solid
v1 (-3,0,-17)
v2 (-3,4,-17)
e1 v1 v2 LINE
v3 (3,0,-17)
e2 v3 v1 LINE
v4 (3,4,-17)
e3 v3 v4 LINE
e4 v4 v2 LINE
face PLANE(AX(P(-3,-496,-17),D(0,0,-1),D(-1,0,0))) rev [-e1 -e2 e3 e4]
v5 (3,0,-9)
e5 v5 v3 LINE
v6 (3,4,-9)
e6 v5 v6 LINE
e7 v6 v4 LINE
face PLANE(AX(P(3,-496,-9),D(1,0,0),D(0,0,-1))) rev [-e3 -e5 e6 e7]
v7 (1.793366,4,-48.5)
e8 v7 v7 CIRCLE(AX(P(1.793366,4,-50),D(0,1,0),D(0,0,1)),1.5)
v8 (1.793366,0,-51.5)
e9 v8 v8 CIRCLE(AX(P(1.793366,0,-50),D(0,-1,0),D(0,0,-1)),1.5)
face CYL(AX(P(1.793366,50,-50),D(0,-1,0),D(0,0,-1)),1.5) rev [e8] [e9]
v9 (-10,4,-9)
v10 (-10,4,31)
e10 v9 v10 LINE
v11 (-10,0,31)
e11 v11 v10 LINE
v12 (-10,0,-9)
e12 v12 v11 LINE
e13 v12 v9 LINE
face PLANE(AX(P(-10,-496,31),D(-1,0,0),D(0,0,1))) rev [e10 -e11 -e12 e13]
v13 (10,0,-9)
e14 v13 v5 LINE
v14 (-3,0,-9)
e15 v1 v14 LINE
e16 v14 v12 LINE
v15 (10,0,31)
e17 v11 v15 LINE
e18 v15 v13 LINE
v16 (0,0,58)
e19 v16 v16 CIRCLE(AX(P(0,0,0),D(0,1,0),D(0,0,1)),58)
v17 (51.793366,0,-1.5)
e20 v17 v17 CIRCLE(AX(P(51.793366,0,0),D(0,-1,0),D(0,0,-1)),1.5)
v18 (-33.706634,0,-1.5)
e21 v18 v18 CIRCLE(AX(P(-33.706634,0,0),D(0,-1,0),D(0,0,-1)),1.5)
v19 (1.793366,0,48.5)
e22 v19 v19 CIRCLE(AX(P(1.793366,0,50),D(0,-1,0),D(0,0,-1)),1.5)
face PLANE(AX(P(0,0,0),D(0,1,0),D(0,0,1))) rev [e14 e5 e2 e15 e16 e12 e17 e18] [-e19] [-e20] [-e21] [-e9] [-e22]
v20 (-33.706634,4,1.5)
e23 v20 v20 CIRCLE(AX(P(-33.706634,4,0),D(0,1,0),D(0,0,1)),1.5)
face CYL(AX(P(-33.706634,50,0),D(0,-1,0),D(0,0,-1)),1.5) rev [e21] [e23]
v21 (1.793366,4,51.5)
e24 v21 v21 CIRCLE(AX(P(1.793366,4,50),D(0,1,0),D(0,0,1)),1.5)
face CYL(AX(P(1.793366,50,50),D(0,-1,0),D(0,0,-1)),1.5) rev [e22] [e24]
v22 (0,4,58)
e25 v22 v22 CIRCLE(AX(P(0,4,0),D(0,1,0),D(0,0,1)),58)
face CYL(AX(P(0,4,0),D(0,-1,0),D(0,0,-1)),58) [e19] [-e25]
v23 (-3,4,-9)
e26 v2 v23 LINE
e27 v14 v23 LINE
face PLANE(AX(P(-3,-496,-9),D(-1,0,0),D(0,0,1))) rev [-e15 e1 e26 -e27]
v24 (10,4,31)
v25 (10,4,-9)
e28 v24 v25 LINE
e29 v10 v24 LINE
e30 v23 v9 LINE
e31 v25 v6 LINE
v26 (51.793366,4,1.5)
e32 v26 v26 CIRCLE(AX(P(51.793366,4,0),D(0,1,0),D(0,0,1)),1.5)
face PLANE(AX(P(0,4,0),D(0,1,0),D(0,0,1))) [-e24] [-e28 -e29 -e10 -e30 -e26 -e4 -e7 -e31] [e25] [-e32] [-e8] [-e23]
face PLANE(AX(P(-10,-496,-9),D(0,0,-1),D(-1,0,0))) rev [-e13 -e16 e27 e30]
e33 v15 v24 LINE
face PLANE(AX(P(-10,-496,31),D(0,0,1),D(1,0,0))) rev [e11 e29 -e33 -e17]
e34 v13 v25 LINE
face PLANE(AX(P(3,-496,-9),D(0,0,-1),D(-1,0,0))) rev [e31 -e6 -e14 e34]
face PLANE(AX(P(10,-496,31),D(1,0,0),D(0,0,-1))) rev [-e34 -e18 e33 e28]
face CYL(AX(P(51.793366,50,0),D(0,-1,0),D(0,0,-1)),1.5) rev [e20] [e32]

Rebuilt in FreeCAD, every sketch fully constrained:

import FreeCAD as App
import Part
import Sketcher

V = App.Vector

doc = App.newDocument("Part")
body = doc.addObject("PartDesign::Body", "Body")

# Sketch on XZ plane
sketch1 = doc.addObject("Sketcher::SketchObject", "Sketch")
body.addObject(sketch1)
sketch1.AttachmentSupport = (doc.XZ_Plane, [""])
sketch1.MapMode = "FlatFace"
sketch1.addGeometry(Part.Circle(V(0, 0, 0), V(0, 0, 1), 58), False)
sketch1.addConstraint([
    Sketcher.Constraint("Coincident", 0, 3, -1, 1),
    Sketcher.Constraint("Diameter", 0, 116.0),
])
pad1 = doc.addObject("PartDesign::Pad", "Pad")
body.addObject(pad1)
pad1.Profile = sketch1
pad1.Length = 4
pad1.Reversed = True

# Sketch on XZ plane
sketch2 = doc.addObject("Sketcher::SketchObject", "Sketch001")
body.addObject(sketch2)
sketch2.AttachmentSupport = (doc.XZ_Plane, [""])
sketch2.MapMode = "FlatFace"
sketch2.addGeometry([
    Part.Circle(V(1.793366, -50, 0), V(0, 0, 1), 1.5),
    Part.Circle(V(-33.706634, 0, 0), V(0, 0, 1), 1.5),
    Part.Circle(V(1.793366, 50, 0), V(0, 0, 1), 1.5),
    Part.Circle(V(51.793366, 0, 0), V(0, 0, 1), 1.5),
], False)
sketch2.addConstraint([
    Sketcher.Constraint("Equal", 0, 1),
    Sketcher.Constraint("Equal", 1, 2),
    Sketcher.Constraint("Equal", 2, 3),
    Sketcher.Constraint("Symmetric", 0, 3, 2, 3, -1),
    Sketcher.Constraint("PointOnObject", 1, 3, -1),
    Sketcher.Constraint("PointOnObject", 3, 3, -1),
    Sketcher.Constraint("Diameter", 0, 3.0),
    Sketcher.Constraint("DistanceY", 0, 3, -1, 1, 50.0),
    Sketcher.Constraint("DistanceX", 0, 3, 3, 3, 50.0),
    Sketcher.Constraint("DistanceX", 1, 3, 0, 3, 35.5),
    Sketcher.Constraint("DistanceX", -1, 1, 0, 3, 1.793366),
])
pocket1 = doc.addObject("PartDesign::Pocket", "Pocket")
body.addObject(pocket1)
pocket1.Profile = sketch2
pocket1.Length = 50

# Sketch on XZ plane
sketch3 = doc.addObject("Sketcher::SketchObject", "Sketch002")
body.addObject(sketch3)
sketch3.AttachmentSupport = (doc.XZ_Plane, [""])
sketch3.MapMode = "FlatFace"
sketch3.AttachmentOffset = App.Placement(V(0, 0, -4), App.Rotation())
sketch3.addGeometry([
    Part.LineSegment(V(10, -9, 0), V(3, -9, 0)),  # 0
    Part.LineSegment(V(3, -9, 0), V(3, -17, 0)),  # 1
    Part.LineSegment(V(3, -17, 0), V(-3, -17, 0)),  # 2
    Part.LineSegment(V(-3, -17, 0), V(-3, -9, 0)),  # 3
    Part.LineSegment(V(-3, -9, 0), V(-10, -9, 0)),  # 4
    Part.LineSegment(V(-10, -9, 0), V(-10, 31, 0)),  # 5
    Part.LineSegment(V(-10, 31, 0), V(10, 31, 0)),  # 6
    Part.LineSegment(V(10, 31, 0), V(10, -9, 0)),  # 7
], False)
sketch3.addConstraint([
    Sketcher.Constraint("Coincident", 0, 2, 1, 1),
    Sketcher.Constraint("Coincident", 1, 2, 2, 1),
    Sketcher.Constraint("Coincident", 2, 2, 3, 1),
    Sketcher.Constraint("Coincident", 3, 2, 4, 1),
    Sketcher.Constraint("Coincident", 4, 2, 5, 1),
    Sketcher.Constraint("Coincident", 5, 2, 6, 1),
    Sketcher.Constraint("Coincident", 6, 2, 7, 1),
    Sketcher.Constraint("Coincident", 7, 2, 0, 1),
    Sketcher.Constraint("Horizontal", 0),
    Sketcher.Constraint("Vertical", 1),
    Sketcher.Constraint("Horizontal", 2),
    Sketcher.Constraint("Vertical", 3),
    Sketcher.Constraint("Horizontal", 4),
    Sketcher.Constraint("Vertical", 5),
    Sketcher.Constraint("Horizontal", 6),
    Sketcher.Constraint("Vertical", 7),
    Sketcher.Constraint("Symmetric", 0, 2, 3, 2, -2),
    Sketcher.Constraint("Equal", 0, 4),
    Sketcher.Constraint("DistanceX", 0, 2, 0, 1, 7.0),
    Sketcher.Constraint("DistanceX", 2, 2, 2, 1, 6.0),
    Sketcher.Constraint("DistanceY", 1, 2, 1, 1, 8.0),
    Sketcher.Constraint("DistanceY", 5, 1, 5, 2, 40.0),
    Sketcher.Constraint("DistanceY", 0, 2, -1, 1, 9.0),
])
pocket2 = doc.addObject("PartDesign::Pocket", "Pocket001")
body.addObject(pocket2)
pocket2.Profile = sketch3
pocket2.Length = 500
pocket2.Reversed = True

doc.recompute()
